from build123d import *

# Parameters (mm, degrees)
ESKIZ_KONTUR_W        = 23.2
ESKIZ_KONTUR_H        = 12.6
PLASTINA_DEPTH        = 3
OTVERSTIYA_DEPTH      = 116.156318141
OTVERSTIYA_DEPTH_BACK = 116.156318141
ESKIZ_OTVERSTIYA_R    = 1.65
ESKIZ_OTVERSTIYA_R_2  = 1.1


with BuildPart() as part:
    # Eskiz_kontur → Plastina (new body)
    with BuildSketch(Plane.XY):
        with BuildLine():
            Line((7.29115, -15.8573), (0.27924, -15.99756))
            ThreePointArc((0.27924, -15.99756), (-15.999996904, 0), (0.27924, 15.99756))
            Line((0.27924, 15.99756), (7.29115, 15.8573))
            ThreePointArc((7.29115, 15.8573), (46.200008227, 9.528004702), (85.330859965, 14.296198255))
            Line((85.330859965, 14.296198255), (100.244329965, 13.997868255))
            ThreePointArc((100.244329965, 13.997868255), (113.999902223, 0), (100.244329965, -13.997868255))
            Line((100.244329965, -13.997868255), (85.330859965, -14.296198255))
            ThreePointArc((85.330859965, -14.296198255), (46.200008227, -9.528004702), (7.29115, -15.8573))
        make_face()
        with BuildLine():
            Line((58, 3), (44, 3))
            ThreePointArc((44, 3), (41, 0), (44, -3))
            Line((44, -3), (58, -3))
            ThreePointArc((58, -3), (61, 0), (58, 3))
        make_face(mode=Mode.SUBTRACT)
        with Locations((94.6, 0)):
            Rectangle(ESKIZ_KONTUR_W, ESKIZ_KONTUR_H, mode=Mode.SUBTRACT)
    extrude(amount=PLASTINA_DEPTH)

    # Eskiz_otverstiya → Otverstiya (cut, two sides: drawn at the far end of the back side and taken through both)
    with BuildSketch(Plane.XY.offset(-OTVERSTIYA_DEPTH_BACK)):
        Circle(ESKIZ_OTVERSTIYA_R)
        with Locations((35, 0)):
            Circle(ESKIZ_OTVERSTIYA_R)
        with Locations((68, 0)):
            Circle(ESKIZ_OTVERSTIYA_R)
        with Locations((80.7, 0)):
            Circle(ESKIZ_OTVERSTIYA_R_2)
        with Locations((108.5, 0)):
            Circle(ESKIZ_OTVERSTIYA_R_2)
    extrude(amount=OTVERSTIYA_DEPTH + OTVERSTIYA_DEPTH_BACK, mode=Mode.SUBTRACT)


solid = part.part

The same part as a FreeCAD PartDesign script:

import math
import FreeCAD as App
import Part
import Sketcher
from FreeCAD import Vector
Q = App.Units.Quantity

doc = App.newDocument("Part")
body = doc.addObject("PartDesign::Body", "Body")

sketch1 = body.newObject("Sketcher::SketchObject", "Sketch")
sketch1.AttachmentSupport = (doc.getObject("XY_Plane"), [""])
sketch1.MapMode = "FlatFace"
sketch1.addGeometry(Part.LineSegment(Vector(0.27924, -15.99756, 0), Vector(7.29115, -15.8573, 0)), False)
sketch1.addGeometry(Part.ArcOfCircle(Part.Circle(Vector(49, -149.499999, 0), Vector(0, 0, 1), 139.999997), math.radians(74.959239), math.radians(107.332738)), False)
sketch1.addGeometry(Part.LineSegment(Vector(85.33086, -14.296198, 0), Vector(100.24433, -13.997868, 0)), False)
sketch1.addGeometry(Part.ArcOfCircle(Part.Circle(Vector(99.9999, 0, 0), Vector(0, 0, 1), 14.000002), math.radians(-88.999606), math.radians(88.999606)), False)
sketch1.addGeometry(Part.LineSegment(Vector(100.24433, 13.997868, 0), Vector(85.33086, 14.296198, 0)), False)
sketch1.addGeometry(Part.ArcOfCircle(Part.Circle(Vector(49, 149.499999, 0), Vector(0, 0, 1), 139.999997), math.radians(-107.332738), math.radians(-74.959239)), False)
sketch1.addGeometry(Part.LineSegment(Vector(7.29115, 15.8573, 0), Vector(0.27924, 15.99756, 0)), False)
sketch1.addGeometry(Part.ArcOfCircle(Part.Circle(Vector(0, 0, 0), Vector(0, 0, 1), 15.999997), math.radians(88.999994), math.radians(271.000006)), False)
sketch1.addGeometry(Part.LineSegment(Vector(83, -6.3, 0), Vector(83, 6.3, 0)), False)
sketch1.addGeometry(Part.LineSegment(Vector(83, 6.3, 0), Vector(106.2, 6.3, 0)), False)
sketch1.addGeometry(Part.LineSegment(Vector(106.2, 6.3, 0), Vector(106.2, -6.3, 0)), False)
sketch1.addGeometry(Part.LineSegment(Vector(106.2, -6.3, 0), Vector(83, -6.3, 0)), False)
sketch1.addGeometry(Part.ArcOfCircle(Part.Circle(Vector(58, 0, 0), Vector(0, 0, 1), 3), math.radians(-90), math.radians(90)), False)
sketch1.addGeometry(Part.LineSegment(Vector(58, -3, 0), Vector(44, -3, 0)), False)
sketch1.addGeometry(Part.ArcOfCircle(Part.Circle(Vector(44, 0, 0), Vector(0, 0, 1), 3), math.radians(90), math.radians(270)), False)
sketch1.addGeometry(Part.LineSegment(Vector(44, 3, 0), Vector(58, 3, 0)), False)
sketch1.addConstraint(Sketcher.Constraint("Coincident", 0, 2, 1, 2))
sketch1.addConstraint(Sketcher.Constraint("Coincident", 1, 1, 2, 1))
sketch1.addConstraint(Sketcher.Constraint("Coincident", 2, 2, 3, 1))
sketch1.addConstraint(Sketcher.Constraint("Coincident", 3, 2, 4, 1))
sketch1.addConstraint(Sketcher.Constraint("Coincident", 4, 2, 5, 2))
sketch1.addConstraint(Sketcher.Constraint("Coincident", 5, 1, 6, 1))
sketch1.addConstraint(Sketcher.Constraint("Coincident", 6, 2, 7, 1))
sketch1.addConstraint(Sketcher.Constraint("Coincident", 7, 2, 0, 1))
sketch1.addConstraint(Sketcher.Constraint("Coincident", 8, 2, 9, 1))
sketch1.addConstraint(Sketcher.Constraint("Coincident", 9, 2, 10, 1))
sketch1.addConstraint(Sketcher.Constraint("Coincident", 10, 2, 11, 1))
sketch1.addConstraint(Sketcher.Constraint("Coincident", 11, 2, 8, 1))
sketch1.addConstraint(Sketcher.Constraint("Coincident", 12, 1, 13, 1))
sketch1.addConstraint(Sketcher.Constraint("Coincident", 13, 2, 14, 2))
sketch1.addConstraint(Sketcher.Constraint("Coincident", 14, 1, 15, 1))
sketch1.addConstraint(Sketcher.Constraint("Coincident", 15, 2, 12, 2))
sketch1.addConstraint(Sketcher.Constraint("Vertical", 8))
sketch1.addConstraint(Sketcher.Constraint("Horizontal", 9))
sketch1.addConstraint(Sketcher.Constraint("Vertical", 10))
sketch1.addConstraint(Sketcher.Constraint("Horizontal", 11))
sketch1.addConstraint(Sketcher.Constraint("Horizontal", 13))
sketch1.addConstraint(Sketcher.Constraint("Horizontal", 15))
sketch1.addConstraint(Sketcher.Constraint("Coincident", 7, 3, -1, 1))
sketch1.addConstraint(Sketcher.Constraint("PointOnObject", 3, 3, -1))
sketch1.addConstraint(Sketcher.Constraint("PointOnObject", 12, 3, -1))
sketch1.addConstraint(Sketcher.Constraint("Radius", 12, Q("3 mm")))
sketch1.addConstraint(Sketcher.Constraint("DistanceX", 13, 2, 13, 1, Q("14 mm")))
sketch1.addConstraint(Sketcher.Constraint("DistanceX", 15, 1, 15, 2, Q("14 mm")))
sketch1.addConstraint(Sketcher.Constraint("DistanceX", 9, 1, 9, 2, Q("23.2 mm")))
sketch1.addConstraint(Sketcher.Constraint("DistanceY", 8, 1, 8, 2, Q("12.6 mm")))
sketch1.addConstraint(Sketcher.Constraint("DistanceX", -1, 1, 1, 3, Q("49 mm")))
sketch1.addConstraint(Sketcher.Constraint("DistanceX", -1, 1, 5, 3, Q("49 mm")))
sketch1.addConstraint(Sketcher.Constraint("DistanceX", -1, 1, 12, 3, Q("58 mm")))
sketch1.addConstraint(Sketcher.Constraint("DistanceX", -1, 1, 14, 3, Q("44 mm")))
sketch1.addConstraint(Sketcher.Constraint("DistanceX", -1, 1, 8, 2, Q("83 mm")))
sketch1.addConstraint(Sketcher.Constraint("DistanceX", -1, 1, 12, 1, Q("58 mm")))
sketch1.addConstraint(Sketcher.Constraint("DistanceX", -1, 1, 14, 1, Q("44 mm")))
sketch1.addConstraint(Sketcher.Constraint("DistanceY", 1, 3, 5, 3, Q("298.999998 mm")))
sketch1.addConstraint(Sketcher.Constraint("DistanceY", 1, 3, -1, 1, Q("149.499999 mm")))
sketch1.addConstraint(Sketcher.Constraint("DistanceY", -1, 1, 8, 2, Q("6.3 mm")))
sketch1.addConstraint(Sketcher.Constraint("Radius", 1, Q("139.999997 mm")))
sketch1.addConstraint(Sketcher.Constraint("Radius", 3, Q("14.000002 mm")))
sketch1.addConstraint(Sketcher.Constraint("Radius", 5, Q("139.999997 mm")))
sketch1.addConstraint(Sketcher.Constraint("Radius", 7, Q("15.999997 mm")))
sketch1.addConstraint(Sketcher.Constraint("DistanceX", -1, 1, 3, 3, Q("99.9999 mm")))
sketch1.addConstraint(Sketcher.Constraint("DistanceY", 0, 2, -1, 1, Q("15.8573 mm")))
sketch1.addConstraint(Sketcher.Constraint("DistanceY", 1, 1, -1, 1, Q("14.296198 mm")))
sketch1.addConstraint(Sketcher.Constraint("DistanceY", -1, 1, 4, 2, Q("14.296198 mm")))
sketch1.addConstraint(Sketcher.Constraint("DistanceY", -1, 1, 5, 1, Q("15.8573 mm")))
sketch1.addConstraint(Sketcher.Constraint("DistanceX", -1, 1, 2, 2, Q("100.24433 mm")))
sketch1.addConstraint(Sketcher.Constraint("DistanceX", -1, 1, 3, 2, Q("100.24433 mm")))
sketch1.addConstraint(Sketcher.Constraint("DistanceX", -1, 1, 6, 2, Q("0.27924 mm")))
sketch1.addConstraint(Sketcher.Constraint("DistanceX", -1, 1, 7, 2, Q("0.27924 mm")))
pad1 = body.newObject("PartDesign::Pad", "Pad")
pad1.Profile = sketch1
pad1.Length = 3

sketch2 = body.newObject("Sketcher::SketchObject", "Sketch001")
sketch2.AttachmentSupport = (doc.getObject("XY_Plane"), [""])
sketch2.MapMode = "FlatFace"
sketch2.addGeometry(Part.Circle(Vector(0, 0, 0), Vector(0, 0, 1), 1.6), False)
sketch2.addGeometry(Part.Circle(Vector(35, 0, 0), Vector(0, 0, 1), 1.6), False)
sketch2.addGeometry(Part.Circle(Vector(68, 0, 0), Vector(0, 0, 1), 1.6), False)
sketch2.addGeometry(Part.Circle(Vector(80.7, 0, 0), Vector(0, 0, 1), 1.1), False)
sketch2.addGeometry(Part.Circle(Vector(108.5, 0, 0), Vector(0, 0, 1), 1.1), False)
sketch2.addConstraint(Sketcher.Constraint("Coincident", 0, 3, -1, 1))
sketch2.addConstraint(Sketcher.Constraint("Equal", 0, 1))
sketch2.addConstraint(Sketcher.Constraint("Equal", 1, 2))
sketch2.addConstraint(Sketcher.Constraint("Equal", 3, 4))
sketch2.addConstraint(Sketcher.Constraint("PointOnObject", 1, 3, -1))
sketch2.addConstraint(Sketcher.Constraint("PointOnObject", 2, 3, -1))
sketch2.addConstraint(Sketcher.Constraint("PointOnObject", 3, 3, -1))
sketch2.addConstraint(Sketcher.Constraint("PointOnObject", 4, 3, -1))
sketch2.addConstraint(Sketcher.Constraint("Diameter", 0, Q("3.3 mm")))
sketch2.addConstraint(Sketcher.Constraint("Diameter", 3, Q("2.2 mm")))
sketch2.addConstraint(Sketcher.Constraint("DistanceX", -1, 1, 1, 3, Q("35 mm")))
sketch2.addConstraint(Sketcher.Constraint("DistanceX", -1, 1, 2, 3, Q("68 mm")))
sketch2.addConstraint(Sketcher.Constraint("DistanceX", -1, 1, 3, 3, Q("80.7 mm")))
sketch2.addConstraint(Sketcher.Constraint("DistanceX", -1, 1, 4, 3, Q("108.5 mm")))
pocket1 = body.newObject("PartDesign::Pocket", "Pocket")
pocket1.Profile = sketch2
pocket1.Type = "ThroughAll"
pocket1.Midplane = True

doc.recompute()
